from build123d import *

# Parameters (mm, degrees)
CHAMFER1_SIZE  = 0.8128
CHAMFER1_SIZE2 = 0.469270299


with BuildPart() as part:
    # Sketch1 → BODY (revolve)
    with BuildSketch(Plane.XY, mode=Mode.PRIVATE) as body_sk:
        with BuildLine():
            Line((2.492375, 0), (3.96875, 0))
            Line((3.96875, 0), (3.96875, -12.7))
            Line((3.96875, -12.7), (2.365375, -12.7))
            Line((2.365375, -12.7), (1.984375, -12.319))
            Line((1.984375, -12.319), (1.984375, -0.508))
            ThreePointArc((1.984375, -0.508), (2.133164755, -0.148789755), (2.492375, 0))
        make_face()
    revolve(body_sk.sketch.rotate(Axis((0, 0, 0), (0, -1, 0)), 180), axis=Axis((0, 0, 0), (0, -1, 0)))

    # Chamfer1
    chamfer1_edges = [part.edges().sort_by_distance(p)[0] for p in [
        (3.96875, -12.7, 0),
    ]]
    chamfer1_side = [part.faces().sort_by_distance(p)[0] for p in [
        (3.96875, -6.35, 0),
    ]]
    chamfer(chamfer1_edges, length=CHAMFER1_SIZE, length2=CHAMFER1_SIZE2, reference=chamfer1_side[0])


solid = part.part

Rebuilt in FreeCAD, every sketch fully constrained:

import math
import FreeCAD as App
import Part
import Sketcher
from FreeCAD import Vector
Q = App.Units.Quantity


def edges_at(feature, points):
    """Names of the edges that pass closest to the given points."""
    edges = feature.Shape.Edges
    near = lambda p: min(range(len(edges)), key=lambda i: edges[i].distToShape(Part.Vertex(*p))[0])
    return sorted({f"Edge{near(p) + 1}" for p in points})

doc = App.newDocument("Part")
body = doc.addObject("PartDesign::Body", "Body")

sketch1 = body.newObject("Sketcher::SketchObject", "Sketch")
sketch1.AttachmentSupport = (doc.getObject("XY_Plane"), [""])
sketch1.MapMode = "FlatFace"
sketch1.addGeometry([
    Part.LineSegment(Vector(4, 0, 0), Vector(2.5, 0, 0)),
    Part.ArcOfCircle(Part.Circle(Vector(2.5, -0.5, 0), Vector(0, 0, 1), 0.5), math.radians(90), math.radians(180)),
    Part.LineSegment(Vector(2, -0.5, 0), Vector(2, -12.3, 0)),
    Part.LineSegment(Vector(2, -12.3, 0), Vector(2.4, -12.7, 0)),
    Part.LineSegment(Vector(2.4, -12.7, 0), Vector(4, -12.7, 0)),
    Part.LineSegment(Vector(4, -12.7, 0), Vector(4, 0, 0)),
], False)
sketch1.addConstraint([
    Sketcher.Constraint("Tangent", 0, 2, 1, 1),
    Sketcher.Constraint("Tangent", 1, 2, 2, 1),
    Sketcher.Constraint("Coincident", 2, 2, 3, 1),
    Sketcher.Constraint("Coincident", 3, 2, 4, 1),
    Sketcher.Constraint("Coincident", 4, 2, 5, 1),
    Sketcher.Constraint("Coincident", 5, 2, 0, 1),
    Sketcher.Constraint("Horizontal", 0),
    Sketcher.Constraint("Vertical", 2),
    Sketcher.Constraint("Horizontal", 4),
    Sketcher.Constraint("Vertical", 5),
    Sketcher.Constraint("PointOnObject", 0, 2, -1),
    Sketcher.Constraint("Radius", 1, Q("0.02 in")),
    Sketcher.Constraint("DistanceY", 5, 1, 5, 2, Q("0.5 in")),
    Sketcher.Constraint("Angle", 3, Q("-45 deg")),
    Sketcher.Constraint("DistanceY", 2, 2, 2, 1, Q("0.465 in")),
    Sketcher.Constraint("DistanceX", -1, 1, 1, 2, Q("0.078125 in")),
    Sketcher.Constraint("DistanceX", -1, 1, 4, 2, Q("0.15625 in")),
])
revolution = body.newObject("PartDesign::Revolution", "Revolution")
revolution.Profile = sketch1
revolution.ReferenceAxis = (sketch1, ["V_Axis"])
revolution.Angle = 360
doc.recompute()

chamfer = body.newObject("PartDesign::Chamfer", "Chamfer")
chamfer.Base = (revolution, edges_at(revolution, [(3.969, -12.7, 0)]))
chamfer.ChamferType = "Two distances"
chamfer.Size = Q("0.032 in")
chamfer.Size2 = 0.46927
chamfer.FlipDirection = True

doc.recompute()
